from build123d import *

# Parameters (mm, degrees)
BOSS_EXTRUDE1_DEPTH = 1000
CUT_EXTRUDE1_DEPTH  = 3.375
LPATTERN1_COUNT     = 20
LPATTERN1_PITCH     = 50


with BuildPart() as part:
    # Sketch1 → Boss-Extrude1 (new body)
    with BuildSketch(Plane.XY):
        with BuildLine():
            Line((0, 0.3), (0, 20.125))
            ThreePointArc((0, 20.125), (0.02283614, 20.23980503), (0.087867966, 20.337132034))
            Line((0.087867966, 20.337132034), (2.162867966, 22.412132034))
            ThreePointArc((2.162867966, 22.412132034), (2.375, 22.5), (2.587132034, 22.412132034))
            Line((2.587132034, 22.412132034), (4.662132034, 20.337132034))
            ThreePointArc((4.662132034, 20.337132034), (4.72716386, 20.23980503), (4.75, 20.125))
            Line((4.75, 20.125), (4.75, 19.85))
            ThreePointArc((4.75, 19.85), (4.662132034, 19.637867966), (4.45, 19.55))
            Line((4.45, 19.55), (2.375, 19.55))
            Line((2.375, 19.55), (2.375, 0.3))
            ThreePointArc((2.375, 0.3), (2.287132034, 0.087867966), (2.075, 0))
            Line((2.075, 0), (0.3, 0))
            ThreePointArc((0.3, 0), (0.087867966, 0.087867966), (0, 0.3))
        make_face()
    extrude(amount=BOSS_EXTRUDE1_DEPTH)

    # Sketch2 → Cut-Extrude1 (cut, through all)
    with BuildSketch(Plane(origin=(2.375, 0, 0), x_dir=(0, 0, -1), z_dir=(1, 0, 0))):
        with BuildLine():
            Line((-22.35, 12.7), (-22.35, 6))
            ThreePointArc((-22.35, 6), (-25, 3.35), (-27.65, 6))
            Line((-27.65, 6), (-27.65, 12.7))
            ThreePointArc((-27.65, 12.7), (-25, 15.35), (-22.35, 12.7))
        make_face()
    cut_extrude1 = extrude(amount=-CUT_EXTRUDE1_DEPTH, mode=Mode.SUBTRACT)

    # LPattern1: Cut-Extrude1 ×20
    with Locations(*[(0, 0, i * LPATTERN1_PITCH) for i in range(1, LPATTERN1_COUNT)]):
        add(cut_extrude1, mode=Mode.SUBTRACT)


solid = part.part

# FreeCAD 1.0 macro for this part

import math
import FreeCAD as App
import Part
import Sketcher

V = App.Vector

doc = App.newDocument("Part")
body = doc.addObject("PartDesign::Body", "Body")

sketch1 = body.newObject("Sketcher::SketchObject", "Sketch")
sketch1.AttachmentSupport = (doc.getObject("XY_Plane"), [""])
sketch1.MapMode = "FlatFace"
sketch1.addGeometry(Part.LineSegment(V(0, 20.125, 0), V(0, 0.3, 0)), False)
sketch1.addGeometry(Part.ArcOfCircle(Part.Circle(V(0.3, 0.3, 0), V(0, 0, 1), 0.3), math.radians(-180), math.radians(-90)), False)
sketch1.addGeometry(Part.LineSegment(V(0.3, 0, 0), V(2.075, 0, 0)), False)
sketch1.addGeometry(Part.ArcOfCircle(Part.Circle(V(2.075, 0.3, 0), V(0, 0, 1), 0.3), math.radians(-90), math.radians(0)), False)
sketch1.addGeometry(Part.LineSegment(V(2.375, 0.3, 0), V(2.375, 19.55, 0)), False)
sketch1.addGeometry(Part.LineSegment(V(2.375, 19.55, 0), V(4.45, 19.55, 0)), False)
sketch1.addGeometry(Part.ArcOfCircle(Part.Circle(V(4.45, 19.85, 0), V(0, 0, 1), 0.3), math.radians(-90), math.radians(0)), False)
sketch1.addGeometry(Part.LineSegment(V(4.75, 19.85, 0), V(4.75, 20.125, 0)), False)
sketch1.addGeometry(Part.ArcOfCircle(Part.Circle(V(4.45, 20.125, 0), V(0, 0, 1), 0.3), math.radians(0), math.radians(45.000001)), False)
sketch1.addGeometry(Part.LineSegment(V(4.662132, 20.337132, 0), V(2.587132, 22.412132, 0)), False)
sketch1.addGeometry(Part.ArcOfCircle(Part.Circle(V(2.375, 22.2, 0), V(0, 0, 1), 0.3), math.radians(45), math.radians(135)), False)
sketch1.addGeometry(Part.LineSegment(V(2.162868, 22.412132, 0), V(0.087868, 20.337132, 0)), False)
sketch1.addGeometry(Part.ArcOfCircle(Part.Circle(V(0.3, 20.125, 0), V(0, 0, 1), 0.3), math.radians(134.999999), math.radians(180)), False)
sketch1.addConstraint(Sketcher.Constraint("Tangent", 0, 2, 1, 1))
sketch1.addConstraint(Sketcher.Constraint("Tangent", 1, 2, 2, 1))
sketch1.addConstraint(Sketcher.Constraint("Tangent", 2, 2, 3, 1))
sketch1.addConstraint(Sketcher.Constraint("Tangent", 3, 2, 4, 1))
sketch1.addConstraint(Sketcher.Constraint("Coincident", 4, 2, 5, 1))
sketch1.addConstraint(Sketcher.Constraint("Tangent", 5, 2, 6, 1))
sketch1.addConstraint(Sketcher.Constraint("Tangent", 6, 2, 7, 1))
sketch1.addConstraint(Sketcher.Constraint("Tangent", 7, 2, 8, 1))
sketch1.addConstraint(Sketcher.Constraint("Tangent", 8, 2, 9, 1))
sketch1.addConstraint(Sketcher.Constraint("Tangent", 9, 2, 10, 1))
sketch1.addConstraint(Sketcher.Constraint("Tangent", 10, 2, 11, 1))
sketch1.addConstraint(Sketcher.Constraint("Tangent", 11, 2, 12, 1))
sketch1.addConstraint(Sketcher.Constraint("Tangent", 12, 2, 0, 1))
sketch1.addConstraint(Sketcher.Constraint("Vertical", 0))
sketch1.addConstraint(Sketcher.Constraint("Horizontal", 2))
sketch1.addConstraint(Sketcher.Constraint("Vertical", 4))
sketch1.addConstraint(Sketcher.Constraint("Horizontal", 5))
sketch1.addConstraint(Sketcher.Constraint("Vertical", 7))
sketch1.addConstraint(Sketcher.Constraint("Equal", 1, 3))
sketch1.addConstraint(Sketcher.Constraint("Equal", 3, 6))
sketch1.addConstraint(Sketcher.Constraint("Equal", 6, 8))
sketch1.addConstraint(Sketcher.Constraint("Equal", 8, 10))
sketch1.addConstraint(Sketcher.Constraint("Equal", 10, 12))
sketch1.addConstraint(Sketcher.Constraint("PointOnObject", 0, 2, -2))
sketch1.addConstraint(Sketcher.Constraint("PointOnObject", 1, 2, -1))
sketch1.addConstraint(Sketcher.Constraint("Perpendicular", 9, 11))
sketch1.addConstraint(Sketcher.Constraint("Horizontal", 8, 3, 12, 3))
sketch1.addConstraint(Sketcher.Constraint("Horizontal", 9, 2, 10, 2))
sketch1.addConstraint(Sketcher.Constraint("Vertical", 10, 3, 3, 2))
sketch1.addConstraint(Sketcher.Constraint("Radius", 1, 0.3))
sketch1.addConstraint(Sketcher.Constraint("DistanceY", 4, 1, 4, 2, 19.25))
sketch1.addConstraint(Sketcher.Constraint("DistanceY", -1, 1, 10, 3, 22.2))
sketch1.addConstraint(Sketcher.Constraint("DistanceX", 2, 1, 2, 2, 1.775))
pad1 = body.newObject("PartDesign::Pad", "Pad")
pad1.Profile = sketch1
pad1.Length = 1000

sketch2 = body.newObject("Sketcher::SketchObject", "Sketch001")
sketch2.AttachmentSupport = (doc.getObject("YZ_Plane"), [""])
sketch2.MapMode = "FlatFace"
sketch2.AttachmentOffset = App.Placement(V(0, 0, 2.375), App.Rotation())
sketch2.addGeometry(Part.LineSegment(V(6, 22.35, 0), V(12.7, 22.35, 0)), False)
sketch2.addGeometry(Part.ArcOfCircle(Part.Circle(V(12.7, 25, 0), V(0, 0, 1), 2.65), math.radians(-90), math.radians(90)), False)
sketch2.addGeometry(Part.LineSegment(V(12.7, 27.65, 0), V(6, 27.65, 0)), False)
sketch2.addGeometry(Part.ArcOfCircle(Part.Circle(V(6, 25, 0), V(0, 0, 1), 2.65), math.radians(90), math.radians(270)), False)
sketch2.addConstraint(Sketcher.Constraint("Tangent", 0, 2, 1, 1))
sketch2.addConstraint(Sketcher.Constraint("Tangent", 1, 2, 2, 1))
sketch2.addConstraint(Sketcher.Constraint("Tangent", 2, 2, 3, 1))
sketch2.addConstraint(Sketcher.Constraint("Tangent", 3, 2, 0, 1))
sketch2.addConstraint(Sketcher.Constraint("Horizontal", 0))
sketch2.addConstraint(Sketcher.Constraint("Horizontal", 2))
sketch2.addConstraint(Sketcher.Constraint("Radius", 1, 2.65))
sketch2.addConstraint(Sketcher.Constraint("DistanceX", 0, 1, 0, 2, 6.7))
sketch2.addConstraint(Sketcher.Constraint("DistanceY", -1, 1, 1, 3, 25.0))
sketch2.addConstraint(Sketcher.Constraint("DistanceX", -1, 1, 3, 3, 6.0))
pocket1 = body.newObject("PartDesign::Pocket", "Pocket")
pocket1.Profile = sketch2
pocket1.Type = "ThroughAll"
doc.recompute()

linearpattern = body.newObject("PartDesign::LinearPattern", "LinearPattern")
linearpattern.Originals = [pocket1]
linearpattern.Direction = (doc.getObject("Z_Axis"), [""])
linearpattern.Mode = "offset"
linearpattern.Offset = 50
linearpattern.Occurrences = 20
body.Tip = linearpattern

doc.recompute()
